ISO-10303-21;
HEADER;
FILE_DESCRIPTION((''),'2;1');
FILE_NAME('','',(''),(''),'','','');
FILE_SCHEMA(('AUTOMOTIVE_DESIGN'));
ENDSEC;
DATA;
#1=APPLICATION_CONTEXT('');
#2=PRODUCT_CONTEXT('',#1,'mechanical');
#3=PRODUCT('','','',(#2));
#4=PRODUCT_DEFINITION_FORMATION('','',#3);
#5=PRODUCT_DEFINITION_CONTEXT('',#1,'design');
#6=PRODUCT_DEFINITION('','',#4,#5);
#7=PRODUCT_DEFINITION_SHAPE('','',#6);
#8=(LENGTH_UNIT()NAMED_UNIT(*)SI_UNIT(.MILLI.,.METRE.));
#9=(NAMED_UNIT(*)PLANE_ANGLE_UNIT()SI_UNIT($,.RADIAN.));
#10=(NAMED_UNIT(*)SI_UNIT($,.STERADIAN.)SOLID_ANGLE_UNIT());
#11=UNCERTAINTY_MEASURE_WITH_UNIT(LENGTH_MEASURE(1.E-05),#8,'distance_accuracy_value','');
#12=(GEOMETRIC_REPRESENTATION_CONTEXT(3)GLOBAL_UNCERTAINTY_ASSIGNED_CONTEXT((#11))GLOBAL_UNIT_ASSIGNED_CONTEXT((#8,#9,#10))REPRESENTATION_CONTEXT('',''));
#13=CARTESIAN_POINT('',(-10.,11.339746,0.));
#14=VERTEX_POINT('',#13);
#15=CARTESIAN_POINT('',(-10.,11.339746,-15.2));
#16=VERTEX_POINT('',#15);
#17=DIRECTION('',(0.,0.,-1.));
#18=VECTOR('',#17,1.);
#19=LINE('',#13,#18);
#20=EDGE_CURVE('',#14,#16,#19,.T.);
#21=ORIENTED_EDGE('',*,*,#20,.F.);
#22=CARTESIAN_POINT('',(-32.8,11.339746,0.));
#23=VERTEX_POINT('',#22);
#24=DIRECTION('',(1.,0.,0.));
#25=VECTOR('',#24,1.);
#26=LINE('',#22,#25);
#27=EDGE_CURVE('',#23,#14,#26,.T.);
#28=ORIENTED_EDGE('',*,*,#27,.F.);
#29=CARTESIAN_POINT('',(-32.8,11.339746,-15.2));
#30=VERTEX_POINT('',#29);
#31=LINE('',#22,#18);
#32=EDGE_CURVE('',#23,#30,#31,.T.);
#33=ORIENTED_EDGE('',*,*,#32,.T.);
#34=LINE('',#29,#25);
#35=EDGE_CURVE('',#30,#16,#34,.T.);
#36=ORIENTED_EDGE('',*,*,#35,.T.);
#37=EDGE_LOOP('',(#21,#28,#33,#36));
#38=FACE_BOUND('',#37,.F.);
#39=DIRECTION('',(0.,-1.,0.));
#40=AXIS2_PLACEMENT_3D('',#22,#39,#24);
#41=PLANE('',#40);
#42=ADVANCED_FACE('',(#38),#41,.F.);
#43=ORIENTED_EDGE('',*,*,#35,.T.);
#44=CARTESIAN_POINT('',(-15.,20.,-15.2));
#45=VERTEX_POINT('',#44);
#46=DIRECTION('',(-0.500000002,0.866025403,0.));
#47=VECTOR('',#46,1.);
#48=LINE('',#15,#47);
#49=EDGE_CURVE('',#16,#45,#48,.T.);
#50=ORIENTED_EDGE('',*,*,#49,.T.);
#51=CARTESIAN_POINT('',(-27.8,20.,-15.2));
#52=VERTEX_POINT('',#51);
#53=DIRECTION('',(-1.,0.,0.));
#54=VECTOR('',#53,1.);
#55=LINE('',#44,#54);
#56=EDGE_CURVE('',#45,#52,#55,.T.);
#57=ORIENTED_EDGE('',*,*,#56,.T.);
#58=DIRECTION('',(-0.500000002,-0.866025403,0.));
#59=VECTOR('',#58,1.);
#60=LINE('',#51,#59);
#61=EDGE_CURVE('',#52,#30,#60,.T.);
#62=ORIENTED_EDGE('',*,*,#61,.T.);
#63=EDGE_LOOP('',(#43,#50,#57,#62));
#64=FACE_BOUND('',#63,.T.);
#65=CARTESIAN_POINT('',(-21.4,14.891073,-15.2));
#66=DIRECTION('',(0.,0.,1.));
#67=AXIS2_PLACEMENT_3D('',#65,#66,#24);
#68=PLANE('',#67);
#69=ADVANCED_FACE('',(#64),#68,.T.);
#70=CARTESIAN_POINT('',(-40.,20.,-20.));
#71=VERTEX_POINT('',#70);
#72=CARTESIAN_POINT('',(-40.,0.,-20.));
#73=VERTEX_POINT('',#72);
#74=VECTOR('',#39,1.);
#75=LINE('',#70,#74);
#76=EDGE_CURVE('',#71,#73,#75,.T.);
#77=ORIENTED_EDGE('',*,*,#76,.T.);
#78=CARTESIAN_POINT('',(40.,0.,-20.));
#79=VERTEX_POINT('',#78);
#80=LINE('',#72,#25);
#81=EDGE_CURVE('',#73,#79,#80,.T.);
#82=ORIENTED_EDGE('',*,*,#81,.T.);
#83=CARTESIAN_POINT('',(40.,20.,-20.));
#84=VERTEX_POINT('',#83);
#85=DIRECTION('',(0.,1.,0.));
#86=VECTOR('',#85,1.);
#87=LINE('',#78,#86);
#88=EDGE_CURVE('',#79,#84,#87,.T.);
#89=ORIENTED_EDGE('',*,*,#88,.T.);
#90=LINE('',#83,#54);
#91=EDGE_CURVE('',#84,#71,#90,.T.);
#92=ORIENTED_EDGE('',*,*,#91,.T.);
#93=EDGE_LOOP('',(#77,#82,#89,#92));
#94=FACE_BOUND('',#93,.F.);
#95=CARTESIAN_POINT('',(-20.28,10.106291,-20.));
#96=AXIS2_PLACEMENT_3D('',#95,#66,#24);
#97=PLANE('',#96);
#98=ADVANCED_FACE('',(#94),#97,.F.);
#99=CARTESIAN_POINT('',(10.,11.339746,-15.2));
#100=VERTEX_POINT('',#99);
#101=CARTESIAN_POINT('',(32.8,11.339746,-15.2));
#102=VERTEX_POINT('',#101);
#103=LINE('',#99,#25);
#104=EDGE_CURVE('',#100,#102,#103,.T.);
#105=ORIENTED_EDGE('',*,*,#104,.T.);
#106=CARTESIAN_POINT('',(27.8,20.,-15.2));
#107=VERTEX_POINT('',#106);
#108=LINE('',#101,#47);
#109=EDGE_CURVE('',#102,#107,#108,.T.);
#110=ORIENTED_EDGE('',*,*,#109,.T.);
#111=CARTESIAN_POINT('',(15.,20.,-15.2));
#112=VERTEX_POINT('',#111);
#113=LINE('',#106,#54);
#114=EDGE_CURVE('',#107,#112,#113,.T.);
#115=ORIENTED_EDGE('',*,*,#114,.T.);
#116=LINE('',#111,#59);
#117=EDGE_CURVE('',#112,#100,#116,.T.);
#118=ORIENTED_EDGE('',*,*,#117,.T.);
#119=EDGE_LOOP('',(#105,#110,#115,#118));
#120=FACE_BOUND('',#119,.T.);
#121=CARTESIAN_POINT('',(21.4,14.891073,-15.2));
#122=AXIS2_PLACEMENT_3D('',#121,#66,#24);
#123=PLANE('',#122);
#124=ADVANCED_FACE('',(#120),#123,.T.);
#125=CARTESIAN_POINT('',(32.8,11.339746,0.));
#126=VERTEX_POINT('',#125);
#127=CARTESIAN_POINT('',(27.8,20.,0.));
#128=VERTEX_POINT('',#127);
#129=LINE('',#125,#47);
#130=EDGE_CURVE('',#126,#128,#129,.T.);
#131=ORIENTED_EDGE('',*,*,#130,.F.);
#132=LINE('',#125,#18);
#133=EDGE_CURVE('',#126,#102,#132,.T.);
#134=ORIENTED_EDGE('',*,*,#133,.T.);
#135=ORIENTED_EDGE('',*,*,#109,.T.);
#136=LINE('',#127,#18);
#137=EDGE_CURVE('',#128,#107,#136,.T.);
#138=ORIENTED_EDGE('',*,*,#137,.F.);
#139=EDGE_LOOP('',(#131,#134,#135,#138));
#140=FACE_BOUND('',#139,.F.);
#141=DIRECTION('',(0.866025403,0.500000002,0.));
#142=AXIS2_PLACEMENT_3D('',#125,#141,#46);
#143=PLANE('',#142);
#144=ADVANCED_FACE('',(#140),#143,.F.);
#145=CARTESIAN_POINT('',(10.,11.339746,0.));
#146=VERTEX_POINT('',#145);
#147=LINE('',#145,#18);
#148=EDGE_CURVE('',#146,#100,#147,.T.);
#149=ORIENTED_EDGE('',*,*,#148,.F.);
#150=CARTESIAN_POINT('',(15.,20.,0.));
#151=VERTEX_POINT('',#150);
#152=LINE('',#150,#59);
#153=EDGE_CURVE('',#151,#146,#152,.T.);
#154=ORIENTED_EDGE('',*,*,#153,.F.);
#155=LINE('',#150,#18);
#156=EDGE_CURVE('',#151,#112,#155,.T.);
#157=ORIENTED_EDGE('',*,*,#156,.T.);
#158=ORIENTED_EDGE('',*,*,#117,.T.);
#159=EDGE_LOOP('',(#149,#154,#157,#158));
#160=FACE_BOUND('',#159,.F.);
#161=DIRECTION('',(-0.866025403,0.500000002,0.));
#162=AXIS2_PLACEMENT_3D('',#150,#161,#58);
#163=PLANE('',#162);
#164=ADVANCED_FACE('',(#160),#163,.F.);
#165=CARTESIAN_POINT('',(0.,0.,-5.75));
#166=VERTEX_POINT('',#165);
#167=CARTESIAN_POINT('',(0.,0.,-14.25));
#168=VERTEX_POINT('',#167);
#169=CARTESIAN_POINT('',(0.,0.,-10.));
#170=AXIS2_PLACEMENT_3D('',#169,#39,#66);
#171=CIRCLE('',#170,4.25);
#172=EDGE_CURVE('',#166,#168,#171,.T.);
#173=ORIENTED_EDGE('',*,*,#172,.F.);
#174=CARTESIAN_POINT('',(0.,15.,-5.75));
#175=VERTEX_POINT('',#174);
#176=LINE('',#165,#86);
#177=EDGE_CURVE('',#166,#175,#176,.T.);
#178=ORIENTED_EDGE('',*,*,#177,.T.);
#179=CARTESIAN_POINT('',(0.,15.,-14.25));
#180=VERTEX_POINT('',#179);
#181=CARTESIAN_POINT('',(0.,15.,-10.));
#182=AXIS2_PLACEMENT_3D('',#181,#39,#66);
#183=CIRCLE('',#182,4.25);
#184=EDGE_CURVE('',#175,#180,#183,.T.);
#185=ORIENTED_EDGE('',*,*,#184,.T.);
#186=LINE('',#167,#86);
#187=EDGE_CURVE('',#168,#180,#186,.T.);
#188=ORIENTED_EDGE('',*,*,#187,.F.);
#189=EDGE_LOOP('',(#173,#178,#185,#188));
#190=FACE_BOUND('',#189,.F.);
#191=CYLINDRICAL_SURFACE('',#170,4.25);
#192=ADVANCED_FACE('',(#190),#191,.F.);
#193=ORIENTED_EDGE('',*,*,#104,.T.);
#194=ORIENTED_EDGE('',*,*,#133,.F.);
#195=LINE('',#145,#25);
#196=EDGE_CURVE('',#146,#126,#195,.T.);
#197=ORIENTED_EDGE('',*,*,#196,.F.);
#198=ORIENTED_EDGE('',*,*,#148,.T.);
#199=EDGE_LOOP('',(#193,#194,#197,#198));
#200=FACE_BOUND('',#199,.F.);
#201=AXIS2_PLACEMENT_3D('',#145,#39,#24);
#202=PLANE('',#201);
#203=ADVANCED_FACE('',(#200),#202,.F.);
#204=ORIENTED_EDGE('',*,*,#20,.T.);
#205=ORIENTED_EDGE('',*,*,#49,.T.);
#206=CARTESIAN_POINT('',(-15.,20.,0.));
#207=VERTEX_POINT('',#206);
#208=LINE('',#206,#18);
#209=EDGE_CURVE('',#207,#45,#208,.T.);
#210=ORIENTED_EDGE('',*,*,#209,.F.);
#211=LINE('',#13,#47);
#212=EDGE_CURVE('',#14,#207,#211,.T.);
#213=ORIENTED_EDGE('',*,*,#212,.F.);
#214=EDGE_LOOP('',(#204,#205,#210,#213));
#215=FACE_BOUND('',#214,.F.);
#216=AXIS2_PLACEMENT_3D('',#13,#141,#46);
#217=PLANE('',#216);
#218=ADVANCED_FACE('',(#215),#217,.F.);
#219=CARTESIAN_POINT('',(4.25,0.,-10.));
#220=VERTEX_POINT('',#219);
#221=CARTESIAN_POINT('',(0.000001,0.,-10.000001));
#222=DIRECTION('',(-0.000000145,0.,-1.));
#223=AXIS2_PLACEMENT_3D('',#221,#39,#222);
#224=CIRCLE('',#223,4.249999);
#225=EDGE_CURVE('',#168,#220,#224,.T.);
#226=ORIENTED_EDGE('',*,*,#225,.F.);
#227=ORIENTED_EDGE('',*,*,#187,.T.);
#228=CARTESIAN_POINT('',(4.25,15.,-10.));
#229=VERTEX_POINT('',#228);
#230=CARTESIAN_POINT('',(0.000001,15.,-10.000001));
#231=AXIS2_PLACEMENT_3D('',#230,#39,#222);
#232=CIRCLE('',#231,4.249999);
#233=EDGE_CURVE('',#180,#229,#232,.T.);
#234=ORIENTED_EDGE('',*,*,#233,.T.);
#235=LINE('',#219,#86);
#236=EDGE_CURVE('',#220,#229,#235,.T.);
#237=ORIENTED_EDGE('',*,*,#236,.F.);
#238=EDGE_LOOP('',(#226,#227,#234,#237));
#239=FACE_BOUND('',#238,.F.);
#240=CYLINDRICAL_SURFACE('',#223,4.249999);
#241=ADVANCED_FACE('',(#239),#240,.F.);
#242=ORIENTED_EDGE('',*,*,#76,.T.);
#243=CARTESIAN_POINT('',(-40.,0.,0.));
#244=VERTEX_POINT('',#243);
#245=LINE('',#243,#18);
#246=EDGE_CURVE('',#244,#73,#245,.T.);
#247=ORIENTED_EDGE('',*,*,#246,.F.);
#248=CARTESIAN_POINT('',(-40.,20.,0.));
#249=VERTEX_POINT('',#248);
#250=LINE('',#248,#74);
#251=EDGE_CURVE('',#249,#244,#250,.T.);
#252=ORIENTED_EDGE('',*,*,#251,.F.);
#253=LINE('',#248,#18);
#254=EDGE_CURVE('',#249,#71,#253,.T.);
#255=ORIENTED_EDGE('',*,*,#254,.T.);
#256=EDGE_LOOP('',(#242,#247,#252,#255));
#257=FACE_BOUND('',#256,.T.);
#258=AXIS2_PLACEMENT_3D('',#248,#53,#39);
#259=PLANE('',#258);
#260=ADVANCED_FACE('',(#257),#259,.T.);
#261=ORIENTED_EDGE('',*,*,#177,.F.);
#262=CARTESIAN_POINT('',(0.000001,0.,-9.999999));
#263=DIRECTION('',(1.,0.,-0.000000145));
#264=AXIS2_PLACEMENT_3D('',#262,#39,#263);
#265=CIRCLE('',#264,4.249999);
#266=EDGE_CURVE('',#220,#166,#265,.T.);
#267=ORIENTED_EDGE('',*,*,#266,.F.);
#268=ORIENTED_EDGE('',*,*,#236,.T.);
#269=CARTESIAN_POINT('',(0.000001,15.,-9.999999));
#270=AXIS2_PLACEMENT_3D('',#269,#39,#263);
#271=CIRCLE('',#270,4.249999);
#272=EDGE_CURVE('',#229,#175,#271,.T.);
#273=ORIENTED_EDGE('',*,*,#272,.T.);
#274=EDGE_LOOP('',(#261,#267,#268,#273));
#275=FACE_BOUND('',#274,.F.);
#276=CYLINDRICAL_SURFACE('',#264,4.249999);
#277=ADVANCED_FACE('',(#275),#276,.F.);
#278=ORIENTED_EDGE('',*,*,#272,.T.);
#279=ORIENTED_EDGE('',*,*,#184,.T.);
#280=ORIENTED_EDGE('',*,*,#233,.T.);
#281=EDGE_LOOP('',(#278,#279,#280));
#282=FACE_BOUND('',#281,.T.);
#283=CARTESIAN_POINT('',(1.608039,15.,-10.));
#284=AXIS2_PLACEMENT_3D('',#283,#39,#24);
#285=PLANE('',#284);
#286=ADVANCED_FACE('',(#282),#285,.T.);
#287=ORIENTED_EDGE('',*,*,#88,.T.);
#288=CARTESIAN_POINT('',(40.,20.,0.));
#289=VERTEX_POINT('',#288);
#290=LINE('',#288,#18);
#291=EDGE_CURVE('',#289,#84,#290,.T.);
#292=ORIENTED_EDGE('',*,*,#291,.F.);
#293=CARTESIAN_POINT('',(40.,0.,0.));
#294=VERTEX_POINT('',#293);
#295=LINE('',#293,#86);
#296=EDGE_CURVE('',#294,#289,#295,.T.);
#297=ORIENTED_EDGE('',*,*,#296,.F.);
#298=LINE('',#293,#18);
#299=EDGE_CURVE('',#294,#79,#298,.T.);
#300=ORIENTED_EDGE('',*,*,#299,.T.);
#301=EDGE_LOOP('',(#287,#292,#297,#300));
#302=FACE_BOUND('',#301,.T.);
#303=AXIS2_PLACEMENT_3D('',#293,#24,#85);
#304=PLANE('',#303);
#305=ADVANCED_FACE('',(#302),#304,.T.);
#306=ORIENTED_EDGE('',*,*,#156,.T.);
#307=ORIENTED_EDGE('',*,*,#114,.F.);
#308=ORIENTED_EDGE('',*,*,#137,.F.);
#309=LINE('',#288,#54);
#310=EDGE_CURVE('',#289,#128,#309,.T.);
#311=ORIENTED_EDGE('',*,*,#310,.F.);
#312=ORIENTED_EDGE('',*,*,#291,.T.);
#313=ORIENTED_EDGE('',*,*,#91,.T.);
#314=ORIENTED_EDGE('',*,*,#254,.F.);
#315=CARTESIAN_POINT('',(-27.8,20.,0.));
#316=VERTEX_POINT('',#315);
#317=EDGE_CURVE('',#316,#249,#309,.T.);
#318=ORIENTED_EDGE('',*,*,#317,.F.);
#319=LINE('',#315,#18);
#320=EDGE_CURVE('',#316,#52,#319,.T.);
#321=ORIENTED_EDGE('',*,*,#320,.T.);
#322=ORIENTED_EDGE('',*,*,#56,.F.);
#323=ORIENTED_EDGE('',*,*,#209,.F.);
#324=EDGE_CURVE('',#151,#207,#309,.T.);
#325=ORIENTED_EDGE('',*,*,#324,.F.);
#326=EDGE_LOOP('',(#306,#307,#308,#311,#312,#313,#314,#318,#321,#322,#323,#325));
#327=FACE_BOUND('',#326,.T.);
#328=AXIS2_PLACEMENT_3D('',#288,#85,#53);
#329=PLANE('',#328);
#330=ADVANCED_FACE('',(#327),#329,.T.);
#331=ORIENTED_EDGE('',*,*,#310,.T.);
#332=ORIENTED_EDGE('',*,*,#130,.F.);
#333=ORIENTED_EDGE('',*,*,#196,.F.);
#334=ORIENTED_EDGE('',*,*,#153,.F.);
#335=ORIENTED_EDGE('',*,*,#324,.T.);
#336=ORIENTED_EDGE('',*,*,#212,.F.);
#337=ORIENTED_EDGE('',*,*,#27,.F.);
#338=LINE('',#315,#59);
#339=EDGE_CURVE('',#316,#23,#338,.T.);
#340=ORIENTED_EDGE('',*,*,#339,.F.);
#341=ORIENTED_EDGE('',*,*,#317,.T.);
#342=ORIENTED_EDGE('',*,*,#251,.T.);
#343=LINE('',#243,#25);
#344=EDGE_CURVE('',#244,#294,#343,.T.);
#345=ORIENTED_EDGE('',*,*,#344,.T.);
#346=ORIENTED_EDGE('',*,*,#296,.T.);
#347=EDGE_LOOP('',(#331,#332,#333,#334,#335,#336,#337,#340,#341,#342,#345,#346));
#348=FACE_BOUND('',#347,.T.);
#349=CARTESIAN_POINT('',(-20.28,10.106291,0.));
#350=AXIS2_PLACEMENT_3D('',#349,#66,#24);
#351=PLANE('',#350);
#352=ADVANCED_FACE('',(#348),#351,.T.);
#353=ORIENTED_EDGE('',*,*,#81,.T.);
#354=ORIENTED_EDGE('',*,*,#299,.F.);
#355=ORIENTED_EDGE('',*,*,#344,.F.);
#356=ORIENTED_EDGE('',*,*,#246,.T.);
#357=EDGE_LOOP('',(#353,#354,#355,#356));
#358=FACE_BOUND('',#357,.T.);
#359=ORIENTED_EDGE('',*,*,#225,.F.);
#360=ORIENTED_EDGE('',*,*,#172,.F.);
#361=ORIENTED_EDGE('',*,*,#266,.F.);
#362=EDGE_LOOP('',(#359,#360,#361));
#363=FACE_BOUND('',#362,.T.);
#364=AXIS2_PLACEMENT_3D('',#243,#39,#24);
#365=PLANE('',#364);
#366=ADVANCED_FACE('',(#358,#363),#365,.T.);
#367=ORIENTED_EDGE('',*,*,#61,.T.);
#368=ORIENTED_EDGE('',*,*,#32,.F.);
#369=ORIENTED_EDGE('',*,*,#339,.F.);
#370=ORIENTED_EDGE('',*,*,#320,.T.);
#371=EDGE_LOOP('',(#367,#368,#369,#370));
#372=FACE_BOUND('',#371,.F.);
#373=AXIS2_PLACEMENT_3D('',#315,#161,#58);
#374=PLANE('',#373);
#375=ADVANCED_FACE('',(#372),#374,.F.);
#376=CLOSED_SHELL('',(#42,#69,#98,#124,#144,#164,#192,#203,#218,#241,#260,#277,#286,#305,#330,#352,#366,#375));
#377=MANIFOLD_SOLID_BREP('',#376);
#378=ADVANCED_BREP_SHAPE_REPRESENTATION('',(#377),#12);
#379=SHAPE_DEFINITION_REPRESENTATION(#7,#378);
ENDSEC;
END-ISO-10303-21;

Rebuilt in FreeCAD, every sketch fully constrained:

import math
import FreeCAD as App
import Part
import Sketcher
Q = App.Units.Quantity

doc = App.newDocument("Part")
params = doc.addObject("Spreadsheet::Sheet", "Params")
for row, (alias, value) in enumerate([
    ("sketch1_width", "80 mm"),
    ("sketch1_height", "20 mm"),
    ("pad1_length", "20 mm"),
    ("sketch2_length", "10 mm"),
    ("sketch2_width", "12.8 mm"),
    ("pocket1_length", "15.2 mm"),
    ("sketch3_radius", "4.249999 mm"),
    ("pocket2_length", "15 mm"),
], start=1):
    params.set(f"A{row}", alias)
    params.set(f"B{row}", "=" + value)
    params.setAlias(f"B{row}", alias)

body = doc.addObject("PartDesign::Body", "Body")

# Sketch on XY plane
sketch1 = body.newObject("Sketcher::SketchObject", "Sketch")
sketch1.AttachmentSupport = (doc.getObject("XY_Plane"), [""])
sketch1.MapMode = "FlatFace"
sketch1.addGeometry(Part.LineSegment(App.Vector(-40, 0, 0), App.Vector(40, 0, 0)), False)
sketch1.addGeometry(Part.LineSegment(App.Vector(40, 0, 0), App.Vector(40, 20, 0)), False)
sketch1.addGeometry(Part.LineSegment(App.Vector(40, 20, 0), App.Vector(-40, 20, 0)), False)
sketch1.addGeometry(Part.LineSegment(App.Vector(-40, 20, 0), App.Vector(-40, 0, 0)), False)
sketch1.addConstraint(Sketcher.Constraint("Coincident", 0, 2, 1, 1))
sketch1.addConstraint(Sketcher.Constraint("Coincident", 1, 2, 2, 1))
sketch1.addConstraint(Sketcher.Constraint("Coincident", 2, 2, 3, 1))
sketch1.addConstraint(Sketcher.Constraint("Coincident", 3, 2, 0, 1))
sketch1.addConstraint(Sketcher.Constraint("Horizontal", 0))
sketch1.addConstraint(Sketcher.Constraint("Vertical", 1))
sketch1.addConstraint(Sketcher.Constraint("Horizontal", 2))
sketch1.addConstraint(Sketcher.Constraint("Vertical", 3))
sketch1.addConstraint(Sketcher.Constraint("Symmetric", 0, 2, 3, 2, -1, 1))
sketch1.addConstraint(Sketcher.Constraint("DistanceX", 0, 1, 0, 2, 80.0))
sketch1.addConstraint(Sketcher.Constraint("DistanceY", 1, 1, 1, 2, 20.0))
sketch1.setExpression("Constraints[9]", "Params.sketch1_width")
sketch1.setExpression("Constraints[10]", "Params.sketch1_height")
pad1 = body.newObject("PartDesign::Pad", "Pad")
pad1.Profile = sketch1
pad1.setExpression("Length", "Params.pad1_length")
pad1.Reversed = True

# Sketch on XY plane
sketch2 = body.newObject("Sketcher::SketchObject", "Sketch001")
sketch2.AttachmentSupport = (doc.getObject("XY_Plane"), [""])
sketch2.MapMode = "FlatFace"
sketch2.addGeometry(Part.LineSegment(App.Vector(-10, 11, 0), App.Vector(-15, 20, 0)), False)
sketch2.addGeometry(Part.LineSegment(App.Vector(-15, 20, 0), App.Vector(-28, 20, 0)), False)
sketch2.addGeometry(Part.LineSegment(App.Vector(-28, 20, 0), App.Vector(-33, 11, 0)), False)
sketch2.addGeometry(Part.LineSegment(App.Vector(-33, 11, 0), App.Vector(-10, 11, 0)), False)
sketch2.addGeometry(Part.LineSegment(App.Vector(28, 20, 0), App.Vector(15, 20, 0)), False)
sketch2.addGeometry(Part.LineSegment(App.Vector(15, 20, 0), App.Vector(10, 11, 0)), False)
sketch2.addGeometry(Part.LineSegment(App.Vector(10, 11, 0), App.Vector(33, 11, 0)), False)
sketch2.addGeometry(Part.LineSegment(App.Vector(33, 11, 0), App.Vector(28, 20, 0)), False)
sketch2.addConstraint(Sketcher.Constraint("Coincident", 0, 2, 1, 1))
sketch2.addConstraint(Sketcher.Constraint("Coincident", 1, 2, 2, 1))
sketch2.addConstraint(Sketcher.Constraint("Coincident", 2, 2, 3, 1))
sketch2.addConstraint(Sketcher.Constraint("Coincident", 3, 2, 0, 1))
sketch2.addConstraint(Sketcher.Constraint("Coincident", 4, 2, 5, 1))
sketch2.addConstraint(Sketcher.Constraint("Coincident", 5, 2, 6, 1))
sketch2.addConstraint(Sketcher.Constraint("Coincident", 6, 2, 7, 1))
sketch2.addConstraint(Sketcher.Constraint("Coincident", 7, 2, 4, 1))
sketch2.addConstraint(Sketcher.Constraint("Horizontal", 1))
sketch2.addConstraint(Sketcher.Constraint("Horizontal", 3))
sketch2.addConstraint(Sketcher.Constraint("Horizontal", 4))
sketch2.addConstraint(Sketcher.Constraint("Horizontal", 6))
sketch2.addConstraint(Sketcher.Constraint("Symmetric", 0, 2, 4, 2, -2))
sketch2.addConstraint(Sketcher.Constraint("Symmetric", 3, 2, 5, 2, -2))
sketch2.addConstraint(Sketcher.Constraint("Parallel", 2, 5))
sketch2.addConstraint(Sketcher.Constraint("Parallel", 0, 7))
sketch2.addConstraint(Sketcher.Constraint("Equal", 1, 4))
sketch2.addConstraint(Sketcher.Constraint("Angle", 0, Q("120 deg")))
sketch2.addConstraint(Sketcher.Constraint("Distance", 0, 10.0))
sketch2.addConstraint(Sketcher.Constraint("DistanceX", 1, 2, 1, 1, 12.8))
sketch2.addConstraint(Sketcher.Constraint("DistanceX", 0, 2, -1, 1, 15.0))
sketch2.addConstraint(Sketcher.Constraint("DistanceY", -1, 1, 0, 2, 20.0))
sketch2.setExpression("Constraints[18]", "Params.sketch2_length")
sketch2.setExpression("Constraints[19]", "Params.sketch2_width")
pocket1 = body.newObject("PartDesign::Pocket", "Pocket")
pocket1.Profile = sketch2
pocket1.setExpression("Length", "Params.pocket1_length")

# Sketch on XZ plane
sketch3 = body.newObject("Sketcher::SketchObject", "Sketch002")
sketch3.AttachmentSupport = (doc.getObject("XZ_Plane"), [""])
sketch3.MapMode = "FlatFace"
sketch3.addGeometry(Part.ArcOfCircle(Part.Circle(App.Vector(0, -10, 0), App.Vector(0, 0, 1), 4.2), math.radians(0), math.radians(90)), False)
sketch3.addGeometry(Part.ArcOfCircle(Part.Circle(App.Vector(0, -10, 0), App.Vector(0, 0, 1), 4.2), math.radians(90), math.radians(270)), False)
sketch3.addGeometry(Part.ArcOfCircle(Part.Circle(App.Vector(0, -10, 0), App.Vector(0, 0, 1), 4.2), math.radians(-90), math.radians(0)), False)
sketch3.addConstraint(Sketcher.Constraint("Tangent", 0, 2, 1, 1))
sketch3.addConstraint(Sketcher.Constraint("Tangent", 1, 2, 2, 1))
sketch3.addConstraint(Sketcher.Constraint("Tangent", 2, 2, 0, 1))
sketch3.addConstraint(Sketcher.Constraint("PointOnObject", 0, 3, -2))
sketch3.addConstraint(Sketcher.Constraint("PointOnObject", 0, 2, -2))
sketch3.addConstraint(Sketcher.Constraint("PointOnObject", 1, 2, -2))
sketch3.addConstraint(Sketcher.Constraint("Horizontal", 1, 3, 2, 2))
sketch3.addConstraint(Sketcher.Constraint("Radius", 0, 4.249999))
sketch3.addConstraint(Sketcher.Constraint("DistanceY", 0, 3, -1, 1, 9.999999))
sketch3.setExpression("Constraints[7]", "Params.sketch3_radius")
pocket2 = body.newObject("PartDesign::Pocket", "Pocket001")
pocket2.Profile = sketch3
pocket2.setExpression("Length", "Params.pocket2_length")

doc.recompute()
